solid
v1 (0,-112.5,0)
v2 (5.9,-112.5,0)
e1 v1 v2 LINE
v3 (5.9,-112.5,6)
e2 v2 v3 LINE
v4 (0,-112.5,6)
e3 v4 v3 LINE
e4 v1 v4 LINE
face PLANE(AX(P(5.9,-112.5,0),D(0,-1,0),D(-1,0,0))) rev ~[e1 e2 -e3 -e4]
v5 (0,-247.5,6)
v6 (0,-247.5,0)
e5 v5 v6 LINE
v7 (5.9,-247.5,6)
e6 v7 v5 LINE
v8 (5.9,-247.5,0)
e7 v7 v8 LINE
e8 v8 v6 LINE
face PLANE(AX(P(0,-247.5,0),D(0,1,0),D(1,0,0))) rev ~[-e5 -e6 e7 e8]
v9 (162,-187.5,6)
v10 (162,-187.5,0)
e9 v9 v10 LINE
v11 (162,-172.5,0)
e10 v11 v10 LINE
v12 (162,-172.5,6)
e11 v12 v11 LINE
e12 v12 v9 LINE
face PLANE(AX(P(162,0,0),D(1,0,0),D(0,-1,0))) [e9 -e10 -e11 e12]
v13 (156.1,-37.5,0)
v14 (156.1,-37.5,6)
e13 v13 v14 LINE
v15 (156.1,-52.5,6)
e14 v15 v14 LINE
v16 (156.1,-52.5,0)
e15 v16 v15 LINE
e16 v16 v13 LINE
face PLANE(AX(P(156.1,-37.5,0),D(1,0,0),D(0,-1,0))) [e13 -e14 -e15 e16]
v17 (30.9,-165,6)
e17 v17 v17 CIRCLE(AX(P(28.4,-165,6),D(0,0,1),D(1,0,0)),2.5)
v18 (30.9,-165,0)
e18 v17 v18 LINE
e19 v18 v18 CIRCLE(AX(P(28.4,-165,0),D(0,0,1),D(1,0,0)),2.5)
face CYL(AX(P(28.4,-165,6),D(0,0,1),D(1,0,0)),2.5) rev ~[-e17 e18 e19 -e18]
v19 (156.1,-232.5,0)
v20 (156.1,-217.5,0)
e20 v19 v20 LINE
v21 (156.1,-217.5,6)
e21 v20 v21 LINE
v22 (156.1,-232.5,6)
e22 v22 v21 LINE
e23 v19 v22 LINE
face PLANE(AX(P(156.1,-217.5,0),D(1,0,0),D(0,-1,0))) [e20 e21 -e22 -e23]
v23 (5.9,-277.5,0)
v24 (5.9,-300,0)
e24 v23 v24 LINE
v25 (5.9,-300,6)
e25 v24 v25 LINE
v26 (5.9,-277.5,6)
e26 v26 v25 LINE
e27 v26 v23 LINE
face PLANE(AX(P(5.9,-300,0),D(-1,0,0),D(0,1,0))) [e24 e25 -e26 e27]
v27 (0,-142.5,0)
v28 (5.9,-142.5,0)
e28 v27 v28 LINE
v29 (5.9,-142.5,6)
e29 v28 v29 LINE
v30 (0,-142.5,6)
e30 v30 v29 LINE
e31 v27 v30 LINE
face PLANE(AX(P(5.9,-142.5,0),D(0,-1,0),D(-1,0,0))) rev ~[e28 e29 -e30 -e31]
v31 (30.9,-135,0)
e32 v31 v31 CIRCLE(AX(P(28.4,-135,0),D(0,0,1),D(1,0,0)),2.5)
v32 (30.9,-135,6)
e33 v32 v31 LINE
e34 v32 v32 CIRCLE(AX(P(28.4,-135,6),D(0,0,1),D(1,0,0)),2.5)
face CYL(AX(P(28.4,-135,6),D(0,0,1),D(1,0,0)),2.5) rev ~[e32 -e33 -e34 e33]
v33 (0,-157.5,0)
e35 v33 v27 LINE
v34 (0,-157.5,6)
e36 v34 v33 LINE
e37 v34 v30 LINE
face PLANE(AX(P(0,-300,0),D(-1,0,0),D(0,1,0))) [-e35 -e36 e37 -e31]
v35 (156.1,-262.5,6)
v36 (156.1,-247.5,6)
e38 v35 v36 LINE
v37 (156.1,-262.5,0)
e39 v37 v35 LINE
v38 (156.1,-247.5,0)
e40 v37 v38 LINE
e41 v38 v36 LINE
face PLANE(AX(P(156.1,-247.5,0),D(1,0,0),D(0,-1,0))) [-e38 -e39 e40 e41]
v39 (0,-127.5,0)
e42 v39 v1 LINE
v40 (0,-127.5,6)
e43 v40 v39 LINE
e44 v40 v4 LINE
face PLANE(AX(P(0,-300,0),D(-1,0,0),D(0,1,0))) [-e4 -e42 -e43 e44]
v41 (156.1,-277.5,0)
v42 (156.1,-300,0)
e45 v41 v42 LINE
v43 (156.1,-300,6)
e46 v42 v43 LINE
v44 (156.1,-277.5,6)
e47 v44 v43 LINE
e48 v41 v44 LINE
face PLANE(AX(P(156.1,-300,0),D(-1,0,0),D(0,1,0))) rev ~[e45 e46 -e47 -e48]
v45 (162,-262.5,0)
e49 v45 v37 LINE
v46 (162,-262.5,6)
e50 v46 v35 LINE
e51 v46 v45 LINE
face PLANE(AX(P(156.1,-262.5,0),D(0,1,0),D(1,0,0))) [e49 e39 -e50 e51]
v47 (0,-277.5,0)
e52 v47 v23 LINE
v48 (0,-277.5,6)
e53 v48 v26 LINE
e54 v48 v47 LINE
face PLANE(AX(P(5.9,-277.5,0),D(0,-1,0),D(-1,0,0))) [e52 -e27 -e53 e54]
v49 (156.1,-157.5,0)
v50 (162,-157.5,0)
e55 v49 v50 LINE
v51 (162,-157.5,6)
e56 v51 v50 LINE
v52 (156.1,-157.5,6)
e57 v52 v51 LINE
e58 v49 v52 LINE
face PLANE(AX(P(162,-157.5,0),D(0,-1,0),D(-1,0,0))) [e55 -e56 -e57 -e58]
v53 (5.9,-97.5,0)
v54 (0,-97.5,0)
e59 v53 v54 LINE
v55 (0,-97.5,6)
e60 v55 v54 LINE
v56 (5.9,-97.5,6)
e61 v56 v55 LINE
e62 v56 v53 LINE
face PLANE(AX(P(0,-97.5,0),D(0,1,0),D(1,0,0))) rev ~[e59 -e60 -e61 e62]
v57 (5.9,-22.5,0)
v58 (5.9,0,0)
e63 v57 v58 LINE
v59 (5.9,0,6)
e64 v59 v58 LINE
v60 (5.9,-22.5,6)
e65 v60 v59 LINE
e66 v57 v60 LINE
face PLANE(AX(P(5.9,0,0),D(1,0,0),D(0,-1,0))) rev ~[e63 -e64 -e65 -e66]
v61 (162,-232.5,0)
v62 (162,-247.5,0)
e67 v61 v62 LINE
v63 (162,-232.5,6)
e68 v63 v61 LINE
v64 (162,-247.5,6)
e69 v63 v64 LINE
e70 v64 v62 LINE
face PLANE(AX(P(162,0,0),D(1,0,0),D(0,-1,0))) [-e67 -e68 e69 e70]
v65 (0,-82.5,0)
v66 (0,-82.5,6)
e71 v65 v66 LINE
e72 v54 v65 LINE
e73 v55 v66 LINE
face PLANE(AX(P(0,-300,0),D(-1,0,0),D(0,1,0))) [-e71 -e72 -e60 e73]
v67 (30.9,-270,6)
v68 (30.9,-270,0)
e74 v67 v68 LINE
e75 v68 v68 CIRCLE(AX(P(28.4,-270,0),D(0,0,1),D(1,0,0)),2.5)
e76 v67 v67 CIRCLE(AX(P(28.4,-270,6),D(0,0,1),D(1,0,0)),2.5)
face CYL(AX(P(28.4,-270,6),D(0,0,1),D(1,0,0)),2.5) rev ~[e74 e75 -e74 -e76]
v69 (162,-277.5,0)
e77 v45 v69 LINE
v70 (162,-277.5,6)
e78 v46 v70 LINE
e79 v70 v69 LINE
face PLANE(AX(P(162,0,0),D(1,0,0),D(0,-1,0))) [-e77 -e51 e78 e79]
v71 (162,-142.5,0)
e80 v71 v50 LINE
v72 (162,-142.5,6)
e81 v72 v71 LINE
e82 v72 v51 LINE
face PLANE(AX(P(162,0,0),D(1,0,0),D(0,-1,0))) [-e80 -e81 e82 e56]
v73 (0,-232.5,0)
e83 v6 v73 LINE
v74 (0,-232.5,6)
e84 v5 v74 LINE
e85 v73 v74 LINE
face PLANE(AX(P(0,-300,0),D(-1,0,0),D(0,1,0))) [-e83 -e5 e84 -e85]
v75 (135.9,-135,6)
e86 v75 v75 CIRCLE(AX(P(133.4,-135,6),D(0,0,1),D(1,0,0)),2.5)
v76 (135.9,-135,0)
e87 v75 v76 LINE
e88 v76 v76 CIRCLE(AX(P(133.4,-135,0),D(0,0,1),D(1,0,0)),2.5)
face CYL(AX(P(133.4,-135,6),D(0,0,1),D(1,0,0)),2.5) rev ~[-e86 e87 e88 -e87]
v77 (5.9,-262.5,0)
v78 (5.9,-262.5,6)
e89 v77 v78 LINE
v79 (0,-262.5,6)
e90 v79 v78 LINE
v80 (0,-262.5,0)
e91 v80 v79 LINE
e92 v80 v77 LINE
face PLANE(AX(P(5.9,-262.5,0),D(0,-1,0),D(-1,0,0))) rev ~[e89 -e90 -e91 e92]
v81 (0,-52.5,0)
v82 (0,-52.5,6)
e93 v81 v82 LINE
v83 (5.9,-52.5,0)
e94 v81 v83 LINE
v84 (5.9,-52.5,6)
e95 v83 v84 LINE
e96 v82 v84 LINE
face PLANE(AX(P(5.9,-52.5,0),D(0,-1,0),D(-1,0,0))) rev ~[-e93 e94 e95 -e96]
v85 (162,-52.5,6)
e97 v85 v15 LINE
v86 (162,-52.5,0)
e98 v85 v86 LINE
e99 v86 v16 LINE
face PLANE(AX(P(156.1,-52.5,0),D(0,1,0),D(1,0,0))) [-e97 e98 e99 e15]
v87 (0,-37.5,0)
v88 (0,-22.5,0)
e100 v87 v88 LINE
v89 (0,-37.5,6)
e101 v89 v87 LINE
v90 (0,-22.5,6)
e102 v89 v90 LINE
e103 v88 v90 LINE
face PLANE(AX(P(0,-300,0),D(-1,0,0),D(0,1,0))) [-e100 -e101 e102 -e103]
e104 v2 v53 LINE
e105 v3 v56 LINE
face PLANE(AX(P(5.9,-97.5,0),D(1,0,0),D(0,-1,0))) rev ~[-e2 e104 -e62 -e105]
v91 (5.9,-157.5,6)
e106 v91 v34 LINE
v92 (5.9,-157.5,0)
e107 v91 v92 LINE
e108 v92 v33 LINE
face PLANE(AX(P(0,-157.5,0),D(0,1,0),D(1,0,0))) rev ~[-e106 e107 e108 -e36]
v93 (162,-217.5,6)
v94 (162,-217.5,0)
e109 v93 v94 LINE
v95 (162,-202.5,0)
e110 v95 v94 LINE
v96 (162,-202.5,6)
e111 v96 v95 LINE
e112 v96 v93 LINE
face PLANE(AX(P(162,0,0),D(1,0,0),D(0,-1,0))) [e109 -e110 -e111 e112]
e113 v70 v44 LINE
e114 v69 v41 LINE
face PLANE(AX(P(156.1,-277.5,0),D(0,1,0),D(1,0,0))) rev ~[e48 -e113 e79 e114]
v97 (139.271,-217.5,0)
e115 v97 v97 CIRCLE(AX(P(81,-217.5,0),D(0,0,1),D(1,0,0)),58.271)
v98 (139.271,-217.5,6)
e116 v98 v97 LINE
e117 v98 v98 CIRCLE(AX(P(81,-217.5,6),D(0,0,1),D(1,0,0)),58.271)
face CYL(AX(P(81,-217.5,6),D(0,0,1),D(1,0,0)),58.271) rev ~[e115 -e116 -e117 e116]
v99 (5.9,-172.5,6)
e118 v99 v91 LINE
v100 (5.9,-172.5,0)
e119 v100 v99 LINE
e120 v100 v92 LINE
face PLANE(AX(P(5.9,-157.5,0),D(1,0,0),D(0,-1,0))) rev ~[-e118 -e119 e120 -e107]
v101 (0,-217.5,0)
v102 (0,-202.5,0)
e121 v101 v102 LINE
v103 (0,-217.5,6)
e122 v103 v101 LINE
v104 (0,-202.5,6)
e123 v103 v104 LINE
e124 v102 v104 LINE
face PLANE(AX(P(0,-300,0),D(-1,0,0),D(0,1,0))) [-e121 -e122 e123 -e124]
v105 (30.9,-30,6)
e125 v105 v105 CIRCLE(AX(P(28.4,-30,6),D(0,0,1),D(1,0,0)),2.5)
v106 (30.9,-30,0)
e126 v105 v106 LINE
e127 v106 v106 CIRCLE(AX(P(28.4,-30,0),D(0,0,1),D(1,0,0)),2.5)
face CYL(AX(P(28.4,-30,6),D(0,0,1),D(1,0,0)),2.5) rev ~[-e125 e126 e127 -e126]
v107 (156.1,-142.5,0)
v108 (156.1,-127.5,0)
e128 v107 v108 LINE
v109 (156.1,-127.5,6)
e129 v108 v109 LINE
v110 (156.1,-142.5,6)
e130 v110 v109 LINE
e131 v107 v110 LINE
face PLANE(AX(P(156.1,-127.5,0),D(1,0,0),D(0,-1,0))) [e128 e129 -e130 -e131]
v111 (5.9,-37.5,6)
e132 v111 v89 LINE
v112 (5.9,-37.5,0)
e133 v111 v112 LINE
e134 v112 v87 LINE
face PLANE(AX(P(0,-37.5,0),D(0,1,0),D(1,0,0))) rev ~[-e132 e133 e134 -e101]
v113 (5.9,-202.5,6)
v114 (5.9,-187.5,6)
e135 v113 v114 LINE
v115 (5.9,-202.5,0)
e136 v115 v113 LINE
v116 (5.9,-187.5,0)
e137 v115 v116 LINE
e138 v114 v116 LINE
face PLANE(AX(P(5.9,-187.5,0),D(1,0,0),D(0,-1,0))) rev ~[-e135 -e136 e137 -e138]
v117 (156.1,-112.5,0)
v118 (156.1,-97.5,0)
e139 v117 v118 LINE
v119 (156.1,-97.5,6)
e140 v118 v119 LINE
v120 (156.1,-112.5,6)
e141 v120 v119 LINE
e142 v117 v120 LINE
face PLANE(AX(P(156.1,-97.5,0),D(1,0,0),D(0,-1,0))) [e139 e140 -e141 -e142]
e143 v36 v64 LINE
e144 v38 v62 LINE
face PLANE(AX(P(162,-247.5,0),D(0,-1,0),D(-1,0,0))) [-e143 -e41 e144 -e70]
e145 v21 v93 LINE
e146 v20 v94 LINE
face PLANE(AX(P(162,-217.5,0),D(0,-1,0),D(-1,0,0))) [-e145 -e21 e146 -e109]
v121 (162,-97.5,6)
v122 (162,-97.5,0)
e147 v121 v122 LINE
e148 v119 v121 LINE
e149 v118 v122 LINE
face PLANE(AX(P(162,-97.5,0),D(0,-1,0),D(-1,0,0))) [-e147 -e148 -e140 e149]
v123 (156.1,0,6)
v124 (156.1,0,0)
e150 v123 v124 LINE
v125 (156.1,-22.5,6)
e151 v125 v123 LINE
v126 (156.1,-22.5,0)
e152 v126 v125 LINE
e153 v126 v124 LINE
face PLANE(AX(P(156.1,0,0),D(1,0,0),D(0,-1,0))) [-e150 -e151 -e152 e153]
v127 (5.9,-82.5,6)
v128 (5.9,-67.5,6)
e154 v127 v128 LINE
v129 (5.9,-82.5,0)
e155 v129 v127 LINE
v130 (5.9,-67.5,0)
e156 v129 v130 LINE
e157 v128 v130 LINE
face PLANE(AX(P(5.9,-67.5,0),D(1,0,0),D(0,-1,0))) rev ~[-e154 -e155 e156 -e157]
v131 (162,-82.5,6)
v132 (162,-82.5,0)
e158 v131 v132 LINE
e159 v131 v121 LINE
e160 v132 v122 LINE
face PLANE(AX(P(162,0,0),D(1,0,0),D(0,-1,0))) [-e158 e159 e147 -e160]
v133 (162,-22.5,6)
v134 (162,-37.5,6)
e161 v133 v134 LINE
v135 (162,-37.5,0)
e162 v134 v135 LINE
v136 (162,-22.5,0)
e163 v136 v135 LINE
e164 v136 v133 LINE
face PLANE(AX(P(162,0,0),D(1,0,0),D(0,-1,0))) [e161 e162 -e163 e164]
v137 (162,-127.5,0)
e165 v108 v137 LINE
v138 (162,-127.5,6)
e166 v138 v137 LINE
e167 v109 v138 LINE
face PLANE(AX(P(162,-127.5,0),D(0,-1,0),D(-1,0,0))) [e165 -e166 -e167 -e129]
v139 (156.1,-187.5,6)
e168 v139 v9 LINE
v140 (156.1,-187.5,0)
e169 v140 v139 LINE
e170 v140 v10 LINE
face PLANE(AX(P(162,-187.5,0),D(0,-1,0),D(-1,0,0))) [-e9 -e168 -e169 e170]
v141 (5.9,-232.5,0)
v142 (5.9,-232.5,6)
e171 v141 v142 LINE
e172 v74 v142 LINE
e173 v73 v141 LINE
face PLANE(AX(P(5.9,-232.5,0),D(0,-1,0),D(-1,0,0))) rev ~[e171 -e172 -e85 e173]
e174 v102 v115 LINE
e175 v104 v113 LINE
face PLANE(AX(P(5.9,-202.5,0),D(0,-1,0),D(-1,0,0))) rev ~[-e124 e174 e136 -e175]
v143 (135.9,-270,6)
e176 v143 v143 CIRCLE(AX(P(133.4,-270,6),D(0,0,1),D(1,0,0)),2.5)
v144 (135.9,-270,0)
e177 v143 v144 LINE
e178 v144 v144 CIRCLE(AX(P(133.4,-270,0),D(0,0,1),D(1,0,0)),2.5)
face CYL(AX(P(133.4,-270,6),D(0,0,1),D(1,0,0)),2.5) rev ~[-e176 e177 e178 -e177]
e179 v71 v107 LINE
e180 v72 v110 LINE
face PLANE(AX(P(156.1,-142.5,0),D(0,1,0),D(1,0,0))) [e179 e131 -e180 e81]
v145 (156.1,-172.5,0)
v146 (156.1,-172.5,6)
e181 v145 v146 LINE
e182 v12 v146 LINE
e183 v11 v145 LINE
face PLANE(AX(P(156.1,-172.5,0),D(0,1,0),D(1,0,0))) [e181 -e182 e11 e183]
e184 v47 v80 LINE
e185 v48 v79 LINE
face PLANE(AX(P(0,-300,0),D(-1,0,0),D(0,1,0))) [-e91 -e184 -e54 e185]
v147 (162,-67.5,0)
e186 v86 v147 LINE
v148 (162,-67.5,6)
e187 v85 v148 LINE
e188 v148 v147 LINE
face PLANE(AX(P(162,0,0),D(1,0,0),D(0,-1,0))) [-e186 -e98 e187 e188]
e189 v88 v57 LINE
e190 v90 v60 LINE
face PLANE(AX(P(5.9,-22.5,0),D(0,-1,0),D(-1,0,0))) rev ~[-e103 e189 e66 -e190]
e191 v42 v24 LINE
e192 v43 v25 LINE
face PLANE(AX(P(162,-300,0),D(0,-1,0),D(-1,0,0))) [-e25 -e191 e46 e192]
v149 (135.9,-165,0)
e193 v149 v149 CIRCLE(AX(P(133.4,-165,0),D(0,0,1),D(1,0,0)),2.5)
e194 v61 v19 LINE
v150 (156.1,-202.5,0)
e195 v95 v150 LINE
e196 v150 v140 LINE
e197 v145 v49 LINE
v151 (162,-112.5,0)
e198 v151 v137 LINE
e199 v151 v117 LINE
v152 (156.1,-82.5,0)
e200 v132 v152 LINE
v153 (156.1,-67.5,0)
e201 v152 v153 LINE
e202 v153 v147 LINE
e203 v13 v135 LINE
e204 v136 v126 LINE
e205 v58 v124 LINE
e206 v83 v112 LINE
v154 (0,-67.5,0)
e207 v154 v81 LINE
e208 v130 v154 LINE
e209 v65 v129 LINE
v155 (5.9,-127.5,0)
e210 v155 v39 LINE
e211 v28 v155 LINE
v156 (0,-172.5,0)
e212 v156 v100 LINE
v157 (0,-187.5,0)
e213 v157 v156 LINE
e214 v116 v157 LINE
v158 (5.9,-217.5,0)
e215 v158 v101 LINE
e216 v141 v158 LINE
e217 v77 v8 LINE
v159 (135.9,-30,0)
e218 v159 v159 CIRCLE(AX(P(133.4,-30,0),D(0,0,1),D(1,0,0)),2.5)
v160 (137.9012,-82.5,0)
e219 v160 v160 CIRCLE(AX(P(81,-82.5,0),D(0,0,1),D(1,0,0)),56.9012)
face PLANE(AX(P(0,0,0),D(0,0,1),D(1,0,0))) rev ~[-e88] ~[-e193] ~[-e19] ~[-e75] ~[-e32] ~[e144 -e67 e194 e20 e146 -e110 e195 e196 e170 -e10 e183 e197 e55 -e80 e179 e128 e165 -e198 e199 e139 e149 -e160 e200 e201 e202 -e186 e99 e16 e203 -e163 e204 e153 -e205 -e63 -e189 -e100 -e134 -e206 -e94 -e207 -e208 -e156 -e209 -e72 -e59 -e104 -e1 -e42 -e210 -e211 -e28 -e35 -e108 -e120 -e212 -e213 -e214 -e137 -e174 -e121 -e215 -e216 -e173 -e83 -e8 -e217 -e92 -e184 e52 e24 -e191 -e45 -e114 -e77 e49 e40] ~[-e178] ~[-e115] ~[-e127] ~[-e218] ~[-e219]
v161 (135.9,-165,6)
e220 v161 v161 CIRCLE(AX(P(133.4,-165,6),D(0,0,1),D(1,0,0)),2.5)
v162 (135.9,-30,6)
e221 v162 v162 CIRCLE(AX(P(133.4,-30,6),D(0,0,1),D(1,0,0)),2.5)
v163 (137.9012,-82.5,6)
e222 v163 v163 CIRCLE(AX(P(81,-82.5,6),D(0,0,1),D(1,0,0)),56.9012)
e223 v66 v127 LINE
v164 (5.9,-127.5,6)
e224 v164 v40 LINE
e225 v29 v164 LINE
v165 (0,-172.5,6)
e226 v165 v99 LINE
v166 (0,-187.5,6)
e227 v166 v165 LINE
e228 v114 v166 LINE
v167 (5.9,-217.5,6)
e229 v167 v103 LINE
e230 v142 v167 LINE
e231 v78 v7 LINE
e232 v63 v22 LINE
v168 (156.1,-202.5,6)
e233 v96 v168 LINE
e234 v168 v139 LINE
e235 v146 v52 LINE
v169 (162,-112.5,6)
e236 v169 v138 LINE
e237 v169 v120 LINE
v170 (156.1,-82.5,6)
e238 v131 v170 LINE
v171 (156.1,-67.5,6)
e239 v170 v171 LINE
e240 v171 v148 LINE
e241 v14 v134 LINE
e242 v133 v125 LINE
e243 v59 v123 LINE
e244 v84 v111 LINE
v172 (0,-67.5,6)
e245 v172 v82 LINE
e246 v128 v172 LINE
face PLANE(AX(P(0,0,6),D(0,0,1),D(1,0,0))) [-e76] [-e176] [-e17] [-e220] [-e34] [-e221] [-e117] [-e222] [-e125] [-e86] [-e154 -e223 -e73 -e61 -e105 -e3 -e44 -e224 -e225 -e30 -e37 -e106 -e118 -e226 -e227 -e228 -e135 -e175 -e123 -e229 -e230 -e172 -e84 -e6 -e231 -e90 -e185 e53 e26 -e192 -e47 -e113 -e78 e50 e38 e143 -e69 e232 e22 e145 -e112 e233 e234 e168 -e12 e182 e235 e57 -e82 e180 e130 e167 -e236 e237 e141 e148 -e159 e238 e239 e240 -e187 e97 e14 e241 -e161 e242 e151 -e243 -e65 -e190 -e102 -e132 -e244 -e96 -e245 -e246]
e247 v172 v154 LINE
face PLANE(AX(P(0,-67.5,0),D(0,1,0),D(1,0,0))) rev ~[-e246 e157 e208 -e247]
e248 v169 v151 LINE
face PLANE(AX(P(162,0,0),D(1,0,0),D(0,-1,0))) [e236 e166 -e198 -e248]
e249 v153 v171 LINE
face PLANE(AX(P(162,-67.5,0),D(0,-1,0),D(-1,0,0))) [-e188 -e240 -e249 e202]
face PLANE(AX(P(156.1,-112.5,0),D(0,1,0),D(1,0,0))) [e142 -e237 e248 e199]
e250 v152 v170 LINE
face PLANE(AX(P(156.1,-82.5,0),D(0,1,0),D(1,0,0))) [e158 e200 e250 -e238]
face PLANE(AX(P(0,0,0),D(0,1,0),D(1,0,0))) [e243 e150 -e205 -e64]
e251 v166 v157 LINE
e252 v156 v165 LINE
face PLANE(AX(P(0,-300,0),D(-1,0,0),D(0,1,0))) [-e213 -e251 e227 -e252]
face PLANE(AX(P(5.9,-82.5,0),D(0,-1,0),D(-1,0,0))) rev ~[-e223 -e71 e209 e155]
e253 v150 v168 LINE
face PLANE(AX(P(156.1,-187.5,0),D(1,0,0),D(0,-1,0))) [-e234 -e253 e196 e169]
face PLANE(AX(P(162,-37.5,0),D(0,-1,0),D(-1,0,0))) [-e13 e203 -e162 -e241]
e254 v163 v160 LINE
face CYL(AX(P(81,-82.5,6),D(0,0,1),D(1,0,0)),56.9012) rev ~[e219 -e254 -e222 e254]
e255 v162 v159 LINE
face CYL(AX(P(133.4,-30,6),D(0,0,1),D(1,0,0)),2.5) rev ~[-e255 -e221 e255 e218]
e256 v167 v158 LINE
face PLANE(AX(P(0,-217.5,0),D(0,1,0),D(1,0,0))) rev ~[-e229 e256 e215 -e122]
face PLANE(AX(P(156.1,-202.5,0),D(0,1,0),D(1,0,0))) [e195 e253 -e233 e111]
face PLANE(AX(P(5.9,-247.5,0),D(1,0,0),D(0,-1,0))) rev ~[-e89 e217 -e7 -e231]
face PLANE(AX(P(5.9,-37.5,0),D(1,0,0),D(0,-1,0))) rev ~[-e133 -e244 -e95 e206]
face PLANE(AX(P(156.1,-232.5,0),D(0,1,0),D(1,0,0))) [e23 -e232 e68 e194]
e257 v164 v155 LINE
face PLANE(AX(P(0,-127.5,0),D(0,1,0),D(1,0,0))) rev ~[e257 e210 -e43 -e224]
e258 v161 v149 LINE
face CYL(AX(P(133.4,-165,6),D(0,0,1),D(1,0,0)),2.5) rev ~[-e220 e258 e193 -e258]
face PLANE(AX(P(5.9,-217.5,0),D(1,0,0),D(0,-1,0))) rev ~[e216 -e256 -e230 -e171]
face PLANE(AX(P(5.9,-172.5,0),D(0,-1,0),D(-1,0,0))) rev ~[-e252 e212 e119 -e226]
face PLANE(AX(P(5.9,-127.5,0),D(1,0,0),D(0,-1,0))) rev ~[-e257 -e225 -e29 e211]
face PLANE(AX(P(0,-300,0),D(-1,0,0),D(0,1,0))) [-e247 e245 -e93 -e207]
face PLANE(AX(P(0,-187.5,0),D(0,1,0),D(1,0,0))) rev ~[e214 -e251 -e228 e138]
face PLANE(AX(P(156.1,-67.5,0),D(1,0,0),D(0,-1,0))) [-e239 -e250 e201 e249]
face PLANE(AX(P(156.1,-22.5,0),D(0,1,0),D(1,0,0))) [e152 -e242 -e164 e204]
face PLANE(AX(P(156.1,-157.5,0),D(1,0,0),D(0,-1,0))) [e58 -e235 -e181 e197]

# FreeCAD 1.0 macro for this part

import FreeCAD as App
import Part
import Sketcher

doc = App.newDocument("Part")
params = doc.addObject("Spreadsheet::Sheet", "Params")
for row, (alias, value) in enumerate([
    ("sketch1_width", "162 mm"),
    ("sketch1_height", "300 mm"),
    ("pad1_length", "6 mm"),
    ("sketch2_height", "15 mm"),
    ("sketch2_width", "5.9 mm"),
    ("sketch2_height2", "22.5 mm"),
    ("pocket1_length", "24 mm"),
    ("sketch3_diameter", "5 mm"),
    ("pocket2_length", "24 mm"),
], start=1):
    params.set(f"A{row}", alias)
    params.set(f"B{row}", "=" + value)
    params.setAlias(f"B{row}", alias)

body = doc.addObject("PartDesign::Body", "Body")

# Sketch on XY plane
sketch1 = doc.addObject("Sketcher::SketchObject", "Sketch")
body.addObject(sketch1)
sketch1.AttachmentSupport = (doc.XY_Plane, [""])
sketch1.MapMode = "FlatFace"
sketch1.addGeometry([
    Part.LineSegment(App.Vector(162, 0, 0), App.Vector(0, 0, 0)),
    Part.LineSegment(App.Vector(0, 0, 0), App.Vector(0, -300, 0)),
    Part.LineSegment(App.Vector(0, -300, 0), App.Vector(162, -300, 0)),
    Part.LineSegment(App.Vector(162, -300, 0), App.Vector(162, 0, 0)),
], False)
sketch1.addConstraint([
    Sketcher.Constraint("Coincident", 0, 2, 1, 1),
    Sketcher.Constraint("Coincident", 1, 2, 2, 1),
    Sketcher.Constraint("Coincident", 2, 2, 3, 1),
    Sketcher.Constraint("Coincident", 3, 2, 0, 1),
    Sketcher.Constraint("Horizontal", 0),
    Sketcher.Constraint("Vertical", 1),
    Sketcher.Constraint("Horizontal", 2),
    Sketcher.Constraint("Vertical", 3),
    Sketcher.Constraint("Coincident", 0, 2, -1, 1),
    Sketcher.Constraint("DistanceX", 0, 2, 0, 1, 162.0),
    Sketcher.Constraint("DistanceY", 1, 2, 1, 1, 300.0),
])
sketch1.setExpression("Constraints[9]", "Params.sketch1_width")
sketch1.setExpression("Constraints[10]", "Params.sketch1_height")
pad1 = doc.addObject("PartDesign::Pad", "Pad")
body.addObject(pad1)
pad1.Profile = sketch1
pad1.setExpression("Length", "Params.pad1_length")

# Sketch on XY plane
sketch2 = doc.addObject("Sketcher::SketchObject", "Sketch001")
body.addObject(sketch2)
sketch2.AttachmentSupport = (doc.XY_Plane, [""])
sketch2.MapMode = "FlatFace"
sketch2.addGeometry([
    Part.LineSegment(App.Vector(0, -22, 0), App.Vector(0, 0, 0)),  # 0
    Part.LineSegment(App.Vector(0, 0, 0), App.Vector(6, 0, 0)),  # 1
    Part.LineSegment(App.Vector(6, 0, 0), App.Vector(6, -22, 0)),  # 2
    Part.LineSegment(App.Vector(6, -22, 0), App.Vector(0, -22, 0)),  # 3
    Part.LineSegment(App.Vector(0, -300, 0), App.Vector(0, -278, 0)),  # 4
    Part.LineSegment(App.Vector(0, -278, 0), App.Vector(6, -278, 0)),  # 5
    Part.LineSegment(App.Vector(6, -278, 0), App.Vector(6, -300, 0)),  # 6
    Part.LineSegment(App.Vector(6, -300, 0), App.Vector(0, -300, 0)),  # 7
    Part.LineSegment(App.Vector(0, -262, 0), App.Vector(0, -248, 0)),  # 8
    Part.LineSegment(App.Vector(0, -248, 0), App.Vector(6, -248, 0)),  # 9
    Part.LineSegment(App.Vector(6, -248, 0), App.Vector(6, -262, 0)),  # 10
    Part.LineSegment(App.Vector(6, -262, 0), App.Vector(0, -262, 0)),  # 11
    Part.LineSegment(App.Vector(0, -232, 0), App.Vector(0, -218, 0)),  # 12
    Part.LineSegment(App.Vector(0, -218, 0), App.Vector(6, -218, 0)),  # 13
    Part.LineSegment(App.Vector(6, -218, 0), App.Vector(6, -232, 0)),  # 14
    Part.LineSegment(App.Vector(6, -232, 0), App.Vector(0, -232, 0)),  # 15
    Part.LineSegment(App.Vector(0, -202, 0), App.Vector(0, -188, 0)),  # 16
    Part.LineSegment(App.Vector(0, -188, 0), App.Vector(6, -188, 0)),  # 17
    Part.LineSegment(App.Vector(6, -188, 0), App.Vector(6, -202, 0)),  # 18
    Part.LineSegment(App.Vector(6, -202, 0), App.Vector(0, -202, 0)),  # 19
    Part.LineSegment(App.Vector(0, -172, 0), App.Vector(0, -158, 0)),  # 20
    Part.LineSegment(App.Vector(0, -158, 0), App.Vector(6, -158, 0)),  # 21
    Part.LineSegment(App.Vector(6, -158, 0), App.Vector(6, -172, 0)),  # 22
    Part.LineSegment(App.Vector(6, -172, 0), App.Vector(0, -172, 0)),  # 23
    Part.LineSegment(App.Vector(0, -142, 0), App.Vector(0, -128, 0)),  # 24
    Part.LineSegment(App.Vector(0, -128, 0), App.Vector(6, -128, 0)),  # 25
    Part.LineSegment(App.Vector(6, -128, 0), App.Vector(6, -142, 0)),  # 26
    Part.LineSegment(App.Vector(6, -142, 0), App.Vector(0, -142, 0)),  # 27
    Part.LineSegment(App.Vector(0, -112, 0), App.Vector(0, -98, 0)),  # 28
    Part.LineSegment(App.Vector(0, -98, 0), App.Vector(6, -98, 0)),  # 29
    Part.LineSegment(App.Vector(6, -98, 0), App.Vector(6, -112, 0)),  # 30
    Part.LineSegment(App.Vector(6, -112, 0), App.Vector(0, -112, 0)),  # 31
    Part.LineSegment(App.Vector(0, -82, 0), App.Vector(0, -68, 0)),  # 32
    Part.LineSegment(App.Vector(0, -68, 0), App.Vector(6, -68, 0)),  # 33
    Part.LineSegment(App.Vector(6, -68, 0), App.Vector(6, -82, 0)),  # 34
    Part.LineSegment(App.Vector(6, -82, 0), App.Vector(0, -82, 0)),  # 35
    Part.LineSegment(App.Vector(0, -52, 0), App.Vector(0, -38, 0)),  # 36
    Part.LineSegment(App.Vector(0, -38, 0), App.Vector(6, -38, 0)),  # 37
    Part.LineSegment(App.Vector(6, -38, 0), App.Vector(6, -52, 0)),  # 38
    Part.LineSegment(App.Vector(6, -52, 0), App.Vector(0, -52, 0)),  # 39
    Part.LineSegment(App.Vector(156, -278, 0), App.Vector(162, -278, 0)),  # 40
    Part.LineSegment(App.Vector(162, -278, 0), App.Vector(162, -300, 0)),  # 41
    Part.LineSegment(App.Vector(162, -300, 0), App.Vector(156, -300, 0)),  # 42
    Part.LineSegment(App.Vector(156, -300, 0), App.Vector(156, -278, 0)),  # 43
    Part.LineSegment(App.Vector(156, -248, 0), App.Vector(162, -248, 0)),  # 44
    Part.LineSegment(App.Vector(162, -248, 0), App.Vector(162, -262, 0)),  # 45
    Part.LineSegment(App.Vector(162, -262, 0), App.Vector(156, -262, 0)),  # 46
    Part.LineSegment(App.Vector(156, -262, 0), App.Vector(156, -248, 0)),  # 47
    Part.LineSegment(App.Vector(156, -218, 0), App.Vector(162, -218, 0)),  # 48
    Part.LineSegment(App.Vector(162, -218, 0), App.Vector(162, -232, 0)),  # 49
    Part.LineSegment(App.Vector(162, -232, 0), App.Vector(156, -232, 0)),  # 50
    Part.LineSegment(App.Vector(156, -232, 0), App.Vector(156, -218, 0)),  # 51
    Part.LineSegment(App.Vector(156, -188, 0), App.Vector(162, -188, 0)),  # 52
    Part.LineSegment(App.Vector(162, -188, 0), App.Vector(162, -202, 0)),  # 53
    Part.LineSegment(App.Vector(162, -202, 0), App.Vector(156, -202, 0)),  # 54
    Part.LineSegment(App.Vector(156, -202, 0), App.Vector(156, -188, 0)),  # 55
    Part.LineSegment(App.Vector(156, -158, 0), App.Vector(162, -158, 0)),  # 56
    Part.LineSegment(App.Vector(162, -158, 0), App.Vector(162, -172, 0)),  # 57
    Part.LineSegment(App.Vector(162, -172, 0), App.Vector(156, -172, 0)),  # 58
    Part.LineSegment(App.Vector(156, -172, 0), App.Vector(156, -158, 0)),  # 59
    Part.LineSegment(App.Vector(156, -128, 0), App.Vector(162, -128, 0)),  # 60
    Part.LineSegment(App.Vector(162, -128, 0), App.Vector(162, -142, 0)),  # 61
    Part.LineSegment(App.Vector(162, -142, 0), App.Vector(156, -142, 0)),  # 62
    Part.LineSegment(App.Vector(156, -142, 0), App.Vector(156, -128, 0)),  # 63
    Part.LineSegment(App.Vector(156, -98, 0), App.Vector(162, -98, 0)),  # 64
    Part.LineSegment(App.Vector(162, -98, 0), App.Vector(162, -112, 0)),  # 65
    Part.LineSegment(App.Vector(162, -112, 0), App.Vector(156, -112, 0)),  # 66
    Part.LineSegment(App.Vector(156, -112, 0), App.Vector(156, -98, 0)),  # 67
    Part.LineSegment(App.Vector(156, -68, 0), App.Vector(162, -68, 0)),  # 68
    Part.LineSegment(App.Vector(162, -68, 0), App.Vector(162, -82, 0)),  # 69
    Part.LineSegment(App.Vector(162, -82, 0), App.Vector(156, -82, 0)),  # 70
    Part.LineSegment(App.Vector(156, -82, 0), App.Vector(156, -68, 0)),  # 71
    Part.LineSegment(App.Vector(156, -38, 0), App.Vector(162, -38, 0)),  # 72
    Part.LineSegment(App.Vector(162, -38, 0), App.Vector(162, -52, 0)),  # 73
    Part.LineSegment(App.Vector(162, -52, 0), App.Vector(156, -52, 0)),  # 74
    Part.LineSegment(App.Vector(156, -52, 0), App.Vector(156, -38, 0)),  # 75
    Part.LineSegment(App.Vector(156, -22, 0), App.Vector(156, 0, 0)),  # 76
    Part.LineSegment(App.Vector(156, 0, 0), App.Vector(162, 0, 0)),  # 77
    Part.LineSegment(App.Vector(162, 0, 0), App.Vector(162, -22, 0)),  # 78
    Part.LineSegment(App.Vector(162, -22, 0), App.Vector(156, -22, 0)),  # 79
], False)
sketch2.addConstraint([
    Sketcher.Constraint("Coincident", 0, 2, 1, 1),
    Sketcher.Constraint("Coincident", 1, 2, 2, 1),
    Sketcher.Constraint("Coincident", 2, 2, 3, 1),
    Sketcher.Constraint("Coincident", 3, 2, 0, 1),
    Sketcher.Constraint("Coincident", 4, 2, 5, 1),
    Sketcher.Constraint("Coincident", 5, 2, 6, 1),
    Sketcher.Constraint("Coincident", 6, 2, 7, 1),
    Sketcher.Constraint("Coincident", 7, 2, 4, 1),
    Sketcher.Constraint("Coincident", 8, 2, 9, 1),
    Sketcher.Constraint("Coincident", 9, 2, 10, 1),
    Sketcher.Constraint("Coincident", 10, 2, 11, 1),
    Sketcher.Constraint("Coincident", 11, 2, 8, 1),
    Sketcher.Constraint("Coincident", 12, 2, 13, 1),
    Sketcher.Constraint("Coincident", 13, 2, 14, 1),
    Sketcher.Constraint("Coincident", 14, 2, 15, 1),
    Sketcher.Constraint("Coincident", 15, 2, 12, 1),
    Sketcher.Constraint("Coincident", 16, 2, 17, 1),
    Sketcher.Constraint("Coincident", 17, 2, 18, 1),
    Sketcher.Constraint("Coincident", 18, 2, 19, 1),
    Sketcher.Constraint("Coincident", 19, 2, 16, 1),
    Sketcher.Constraint("Coincident", 20, 2, 21, 1),
    Sketcher.Constraint("Coincident", 21, 2, 22, 1),
    Sketcher.Constraint("Coincident", 22, 2, 23, 1),
    Sketcher.Constraint("Coincident", 23, 2, 20, 1),
    Sketcher.Constraint("Coincident", 24, 2, 25, 1),
    Sketcher.Constraint("Coincident", 25, 2, 26, 1),
    Sketcher.Constraint("Coincident", 26, 2, 27, 1),
    Sketcher.Constraint("Coincident", 27, 2, 24, 1),
    Sketcher.Constraint("Coincident", 28, 2, 29, 1),
    Sketcher.Constraint("Coincident", 29, 2, 30, 1),
    Sketcher.Constraint("Coincident", 30, 2, 31, 1),
    Sketcher.Constraint("Coincident", 31, 2, 28, 1),
    Sketcher.Constraint("Coincident", 32, 2, 33, 1),
    Sketcher.Constraint("Coincident", 33, 2, 34, 1),
    Sketcher.Constraint("Coincident", 34, 2, 35, 1),
    Sketcher.Constraint("Coincident", 35, 2, 32, 1),
    Sketcher.Constraint("Coincident", 36, 2, 37, 1),
    Sketcher.Constraint("Coincident", 37, 2, 38, 1),
    Sketcher.Constraint("Coincident", 38, 2, 39, 1),
    Sketcher.Constraint("Coincident", 39, 2, 36, 1),
    Sketcher.Constraint("Coincident", 40, 2, 41, 1),
    Sketcher.Constraint("Coincident", 41, 2, 42, 1),
    Sketcher.Constraint("Coincident", 42, 2, 43, 1),
    Sketcher.Constraint("Coincident", 43, 2, 40, 1),
    Sketcher.Constraint("Coincident", 44, 2, 45, 1),
    Sketcher.Constraint("Coincident", 45, 2, 46, 1),
    Sketcher.Constraint("Coincident", 46, 2, 47, 1),
    Sketcher.Constraint("Coincident", 47, 2, 44, 1),
    Sketcher.Constraint("Coincident", 48, 2, 49, 1),
    Sketcher.Constraint("Coincident", 49, 2, 50, 1),
    Sketcher.Constraint("Coincident", 50, 2, 51, 1),
    Sketcher.Constraint("Coincident", 51, 2, 48, 1),
    Sketcher.Constraint("Coincident", 52, 2, 53, 1),
    Sketcher.Constraint("Coincident", 53, 2, 54, 1),
    Sketcher.Constraint("Coincident", 54, 2, 55, 1),
    Sketcher.Constraint("Coincident", 55, 2, 52, 1),
    Sketcher.Constraint("Coincident", 56, 2, 57, 1),
    Sketcher.Constraint("Coincident", 57, 2, 58, 1),
    Sketcher.Constraint("Coincident", 58, 2, 59, 1),
    Sketcher.Constraint("Coincident", 59, 2, 56, 1),
    Sketcher.Constraint("Coincident", 60, 2, 61, 1),
    Sketcher.Constraint("Coincident", 61, 2, 62, 1),
    Sketcher.Constraint("Coincident", 62, 2, 63, 1),
    Sketcher.Constraint("Coincident", 63, 2, 60, 1),
    Sketcher.Constraint("Coincident", 64, 2, 65, 1),
    Sketcher.Constraint("Coincident", 65, 2, 66, 1),
    Sketcher.Constraint("Coincident", 66, 2, 67, 1),
    Sketcher.Constraint("Coincident", 67, 2, 64, 1),
    Sketcher.Constraint("Coincident", 68, 2, 69, 1),
    Sketcher.Constraint("Coincident", 69, 2, 70, 1),
    Sketcher.Constraint("Coincident", 70, 2, 71, 1),
    Sketcher.Constraint("Coincident", 71, 2, 68, 1),
    Sketcher.Constraint("Coincident", 72, 2, 73, 1),
    Sketcher.Constraint("Coincident", 73, 2, 74, 1),
    Sketcher.Constraint("Coincident", 74, 2, 75, 1),
    Sketcher.Constraint("Coincident", 75, 2, 72, 1),
    Sketcher.Constraint("Coincident", 76, 2, 77, 1),
    Sketcher.Constraint("Coincident", 77, 2, 78, 1),
    Sketcher.Constraint("Coincident", 78, 2, 79, 1),
    Sketcher.Constraint("Coincident", 79, 2, 76, 1),
    Sketcher.Constraint("Vertical", 0),
    Sketcher.Constraint("Horizontal", 1),
    Sketcher.Constraint("Vertical", 2),
    Sketcher.Constraint("Horizontal", 3),
    Sketcher.Constraint("Vertical", 4),
    Sketcher.Constraint("Horizontal", 5),
    Sketcher.Constraint("Vertical", 6),
    Sketcher.Constraint("Horizontal", 7),
    Sketcher.Constraint("Vertical", 8),
    Sketcher.Constraint("Horizontal", 9),
    Sketcher.Constraint("Vertical", 10),
    Sketcher.Constraint("Horizontal", 11),
    Sketcher.Constraint("Vertical", 12),
    Sketcher.Constraint("Horizontal", 13),
    Sketcher.Constraint("Vertical", 14),
    Sketcher.Constraint("Horizontal", 15),
    Sketcher.Constraint("Vertical", 16),
    Sketcher.Constraint("Horizontal", 17),
    Sketcher.Constraint("Vertical", 18),
    Sketcher.Constraint("Horizontal", 19),
    Sketcher.Constraint("Vertical", 20),
    Sketcher.Constraint("Horizontal", 21),
    Sketcher.Constraint("Vertical", 22),
    Sketcher.Constraint("Horizontal", 23),
    Sketcher.Constraint("Vertical", 24),
    Sketcher.Constraint("Horizontal", 25),
    Sketcher.Constraint("Vertical", 26),
    Sketcher.Constraint("Horizontal", 27),
    Sketcher.Constraint("Vertical", 28),
    Sketcher.Constraint("Horizontal", 29),
    Sketcher.Constraint("Vertical", 30),
    Sketcher.Constraint("Horizontal", 31),
    Sketcher.Constraint("Vertical", 32),
    Sketcher.Constraint("Horizontal", 33),
    Sketcher.Constraint("Vertical", 34),
    Sketcher.Constraint("Horizontal", 35),
    Sketcher.Constraint("Vertical", 36),
    Sketcher.Constraint("Horizontal", 37),
    Sketcher.Constraint("Vertical", 38),
    Sketcher.Constraint("Horizontal", 39),
    Sketcher.Constraint("Horizontal", 40),
    Sketcher.Constraint("Vertical", 41),
    Sketcher.Constraint("Horizontal", 42),
    Sketcher.Constraint("Vertical", 43),
    Sketcher.Constraint("Horizontal", 44),
    Sketcher.Constraint("Vertical", 45),
    Sketcher.Constraint("Horizontal", 46),
    Sketcher.Constraint("Vertical", 47),
    Sketcher.Constraint("Horizontal", 48),
    Sketcher.Constraint("Vertical", 49),
    Sketcher.Constraint("Horizontal", 50),
    Sketcher.Constraint("Vertical", 51),
    Sketcher.Constraint("Horizontal", 52),
    Sketcher.Constraint("Vertical", 53),
    Sketcher.Constraint("Horizontal", 54),
    Sketcher.Constraint("Vertical", 55),
    Sketcher.Constraint("Horizontal", 56),
    Sketcher.Constraint("Vertical", 57),
    Sketcher.Constraint("Horizontal", 58),
    Sketcher.Constraint("Vertical", 59),
    Sketcher.Constraint("Horizontal", 60),
    Sketcher.Constraint("Vertical", 61),
    Sketcher.Constraint("Horizontal", 62),
    Sketcher.Constraint("Vertical", 63),
    Sketcher.Constraint("Horizontal", 64),
    Sketcher.Constraint("Vertical", 65),
    Sketcher.Constraint("Horizontal", 66),
    Sketcher.Constraint("Vertical", 67),
    Sketcher.Constraint("Horizontal", 68),
    Sketcher.Constraint("Vertical", 69),
    Sketcher.Constraint("Horizontal", 70),
    Sketcher.Constraint("Vertical", 71),
    Sketcher.Constraint("Horizontal", 72),
    Sketcher.Constraint("Vertical", 73),
    Sketcher.Constraint("Horizontal", 74),
    Sketcher.Constraint("Vertical", 75),
    Sketcher.Constraint("Vertical", 76),
    Sketcher.Constraint("Horizontal", 77),
    Sketcher.Constraint("Vertical", 78),
    Sketcher.Constraint("Horizontal", 79),
    Sketcher.Constraint("Coincident", 0, 2, -1, 1),
    Sketcher.Constraint("PointOnObject", 4, 2, -2),
    Sketcher.Constraint("PointOnObject", 8, 2, -2),
    Sketcher.Constraint("PointOnObject", 12, 2, -2),
    Sketcher.Constraint("PointOnObject", 16, 2, -2),
    Sketcher.Constraint("PointOnObject", 20, 2, -2),
    Sketcher.Constraint("PointOnObject", 24, 2, -2),
    Sketcher.Constraint("PointOnObject", 28, 2, -2),
    Sketcher.Constraint("PointOnObject", 32, 2, -2),
    Sketcher.Constraint("PointOnObject", 36, 2, -2),
    Sketcher.Constraint("PointOnObject", 76, 2, -1),
    Sketcher.Constraint("Horizontal", 5, 2, 40, 2),
    Sketcher.Constraint("Horizontal", 7, 2, 41, 2),
    Sketcher.Constraint("Horizontal", 9, 2, 44, 2),
    Sketcher.Constraint("Horizontal", 11, 2, 45, 2),
    Sketcher.Constraint("Horizontal", 13, 2, 48, 2),
    Sketcher.Constraint("Horizontal", 15, 2, 49, 2),
    Sketcher.Constraint("Horizontal", 17, 2, 52, 2),
    Sketcher.Constraint("Horizontal", 19, 2, 53, 2),
    Sketcher.Constraint("Horizontal", 21, 2, 56, 2),
    Sketcher.Constraint("Horizontal", 23, 2, 57, 2),
    Sketcher.Constraint("Horizontal", 25, 2, 60, 2),
    Sketcher.Constraint("Horizontal", 27, 2, 61, 2),
    Sketcher.Constraint("Horizontal", 29, 2, 64, 2),
    Sketcher.Constraint("Horizontal", 31, 2, 65, 2),
    Sketcher.Constraint("Horizontal", 33, 2, 68, 2),
    Sketcher.Constraint("Horizontal", 35, 2, 69, 2),
    Sketcher.Constraint("Horizontal", 37, 2, 72, 2),
    Sketcher.Constraint("Horizontal", 39, 2, 73, 2),
    Sketcher.Constraint("Horizontal", 3, 2, 78, 2),
    Sketcher.Constraint("Vertical", 2, 2, 5, 2),
    Sketcher.Constraint("Vertical", 6, 2, 9, 2),
    Sketcher.Constraint("Vertical", 10, 2, 13, 2),
    Sketcher.Constraint("Vertical", 14, 2, 17, 2),
    Sketcher.Constraint("Vertical", 18, 2, 21, 2),
    Sketcher.Constraint("Vertical", 22, 2, 25, 2),
    Sketcher.Constraint("Vertical", 26, 2, 29, 2),
    Sketcher.Constraint("Vertical", 30, 2, 33, 2),
    Sketcher.Constraint("Vertical", 34, 2, 37, 2),
    Sketcher.Constraint("Vertical", 41, 2, 44, 2),
    Sketcher.Constraint("Vertical", 43, 2, 46, 2),
    Sketcher.Constraint("Vertical", 45, 2, 48, 2),
    Sketcher.Constraint("Vertical", 47, 2, 50, 2),
    Sketcher.Constraint("Vertical", 49, 2, 52, 2),
    Sketcher.Constraint("Vertical", 51, 2, 54, 2),
    Sketcher.Constraint("Vertical", 53, 2, 56, 2),
    Sketcher.Constraint("Vertical", 55, 2, 58, 2),
    Sketcher.Constraint("Vertical", 57, 2, 60, 2),
    Sketcher.Constraint("Vertical", 59, 2, 62, 2),
    Sketcher.Constraint("Vertical", 61, 2, 64, 2),
    Sketcher.Constraint("Vertical", 63, 2, 66, 2),
    Sketcher.Constraint("Vertical", 65, 2, 68, 2),
    Sketcher.Constraint("Vertical", 67, 2, 70, 2),
    Sketcher.Constraint("Vertical", 69, 2, 72, 2),
    Sketcher.Constraint("Vertical", 71, 2, 74, 2),
    Sketcher.Constraint("Vertical", 75, 2, 76, 2),
    Sketcher.Constraint("Vertical", 73, 2, 77, 2),
    Sketcher.Constraint("Equal", 39, 40),
    Sketcher.Constraint("Equal", 2, 4),
    Sketcher.Constraint("Equal", 10, 12),
    Sketcher.Constraint("Equal", 14, 16),
    Sketcher.Constraint("Equal", 18, 20),
    Sketcher.Constraint("Equal", 22, 24),
    Sketcher.Constraint("Equal", 26, 28),
    Sketcher.Constraint("Equal", 30, 32),
    Sketcher.Constraint("Equal", 34, 36),
    Sketcher.Constraint("DistanceY", 8, 1, 8, 2, 15.0),
    Sketcher.Constraint("DistanceX", 1, 1, 1, 2, 5.9),
    Sketcher.Constraint("DistanceY", 0, 1, 0, 2, 22.5),
    Sketcher.Constraint("DistanceY", 6, 2, -1, 1, 300.0),
    Sketcher.Constraint("DistanceX", -1, 1, 40, 2, 162.0),
    Sketcher.Constraint("DistanceY", 8, 2, -1, 1, 247.5),
    Sketcher.Constraint("DistanceY", 12, 2, -1, 1, 217.5),
    Sketcher.Constraint("DistanceY", 16, 2, -1, 1, 187.5),
    Sketcher.Constraint("DistanceY", 20, 2, -1, 1, 157.5),
    Sketcher.Constraint("DistanceY", 24, 2, -1, 1, 127.5),
    Sketcher.Constraint("DistanceY", 28, 2, -1, 1, 97.5),
    Sketcher.Constraint("DistanceY", 32, 2, -1, 1, 67.5),
    Sketcher.Constraint("DistanceY", 36, 2, -1, 1, 37.5),
])
sketch2.setExpression("Constraints[226]", "Params.sketch2_height")
sketch2.setExpression("Constraints[227]", "Params.sketch2_width")
sketch2.setExpression("Constraints[228]", "Params.sketch2_height2")
pocket1 = doc.addObject("PartDesign::Pocket", "Pocket")
body.addObject(pocket1)
pocket1.Profile = sketch2
pocket1.setExpression("Length", "Params.pocket1_length")
pocket1.Midplane = True

# Sketch on XY plane
sketch3 = doc.addObject("Sketcher::SketchObject", "Sketch002")
body.addObject(sketch3)
sketch3.AttachmentSupport = (doc.XY_Plane, [""])
sketch3.MapMode = "FlatFace"
sketch3.AttachmentOffset = App.Placement(App.Vector(0, 0, 6), App.Rotation())
sketch3.addGeometry([
    Part.Circle(App.Vector(28.4, -30, 0), App.Vector(0, 0, 1), 2.5),  # 0
    Part.Circle(App.Vector(133.4, -30, 0), App.Vector(0, 0, 1), 2.5),  # 1
    Part.Circle(App.Vector(28.4, -135, 0), App.Vector(0, 0, 1), 2.5),  # 2
    Part.Circle(App.Vector(133.4, -135, 0), App.Vector(0, 0, 1), 2.5),  # 3
    Part.Circle(App.Vector(28.4, -165, 0), App.Vector(0, 0, 1), 2.5),  # 4
    Part.Circle(App.Vector(133.4, -165, 0), App.Vector(0, 0, 1), 2.5),  # 5
    Part.Circle(App.Vector(28.4, -270, 0), App.Vector(0, 0, 1), 2.5),  # 6
    Part.Circle(App.Vector(133.4, -270, 0), App.Vector(0, 0, 1), 2.5),  # 7
    Part.Circle(App.Vector(81, -82.5, 0), App.Vector(0, 0, 1), 56.9),  # 8
    Part.Circle(App.Vector(81, -217.5, 0), App.Vector(0, 0, 1), 58.3),  # 9
], False)
sketch3.addConstraint([
    Sketcher.Constraint("Equal", 0, 1),
    Sketcher.Constraint("Equal", 1, 2),
    Sketcher.Constraint("Equal", 2, 3),
    Sketcher.Constraint("Equal", 3, 4),
    Sketcher.Constraint("Equal", 4, 5),
    Sketcher.Constraint("Equal", 5, 6),
    Sketcher.Constraint("Equal", 6, 7),
    Sketcher.Constraint("Horizontal", 0, 3, 1, 3),
    Sketcher.Constraint("Horizontal", 2, 3, 3, 3),
    Sketcher.Constraint("Horizontal", 4, 3, 5, 3),
    Sketcher.Constraint("Horizontal", 6, 3, 7, 3),
    Sketcher.Constraint("Vertical", 0, 3, 2, 3),
    Sketcher.Constraint("Vertical", 1, 3, 3, 3),
    Sketcher.Constraint("Vertical", 2, 3, 4, 3),
    Sketcher.Constraint("Vertical", 3, 3, 5, 3),
    Sketcher.Constraint("Vertical", 4, 3, 6, 3),
    Sketcher.Constraint("Vertical", 5, 3, 7, 3),
    Sketcher.Constraint("Vertical", 8, 3, 9, 3),
    Sketcher.Constraint("Diameter", 0, 5.0),
    Sketcher.Constraint("DistanceY", 0, 3, -1, 1, 30.0),
    Sketcher.Constraint("DistanceY", 2, 3, -1, 1, 135.0),
    Sketcher.Constraint("DistanceX", 0, 3, 1, 3, 105.0),
    Sketcher.Constraint("DistanceY", 4, 3, 2, 3, 30.0),
    Sketcher.Constraint("DistanceY", 6, 3, 4, 3, 105.0),
    Sketcher.Constraint("DistanceY", 8, 3, -1, 1, 82.5),
    Sketcher.Constraint("DistanceY", 9, 3, 3, 3, 82.5),
    Sketcher.Constraint("Diameter", 9, 116.542),
    Sketcher.Constraint("DistanceX", -1, 1, 8, 3, 81.0),
    Sketcher.Constraint("Diameter", 8, 113.8024),
    Sketcher.Constraint("DistanceX", -1, 1, 0, 3, 28.4),
])
sketch3.setExpression("Constraints[18]", "Params.sketch3_diameter")
pocket2 = doc.addObject("PartDesign::Pocket", "Pocket001")
body.addObject(pocket2)
pocket2.Profile = sketch3
pocket2.setExpression("Length", "Params.pocket2_length")
pocket2.Midplane = True

doc.recompute()
